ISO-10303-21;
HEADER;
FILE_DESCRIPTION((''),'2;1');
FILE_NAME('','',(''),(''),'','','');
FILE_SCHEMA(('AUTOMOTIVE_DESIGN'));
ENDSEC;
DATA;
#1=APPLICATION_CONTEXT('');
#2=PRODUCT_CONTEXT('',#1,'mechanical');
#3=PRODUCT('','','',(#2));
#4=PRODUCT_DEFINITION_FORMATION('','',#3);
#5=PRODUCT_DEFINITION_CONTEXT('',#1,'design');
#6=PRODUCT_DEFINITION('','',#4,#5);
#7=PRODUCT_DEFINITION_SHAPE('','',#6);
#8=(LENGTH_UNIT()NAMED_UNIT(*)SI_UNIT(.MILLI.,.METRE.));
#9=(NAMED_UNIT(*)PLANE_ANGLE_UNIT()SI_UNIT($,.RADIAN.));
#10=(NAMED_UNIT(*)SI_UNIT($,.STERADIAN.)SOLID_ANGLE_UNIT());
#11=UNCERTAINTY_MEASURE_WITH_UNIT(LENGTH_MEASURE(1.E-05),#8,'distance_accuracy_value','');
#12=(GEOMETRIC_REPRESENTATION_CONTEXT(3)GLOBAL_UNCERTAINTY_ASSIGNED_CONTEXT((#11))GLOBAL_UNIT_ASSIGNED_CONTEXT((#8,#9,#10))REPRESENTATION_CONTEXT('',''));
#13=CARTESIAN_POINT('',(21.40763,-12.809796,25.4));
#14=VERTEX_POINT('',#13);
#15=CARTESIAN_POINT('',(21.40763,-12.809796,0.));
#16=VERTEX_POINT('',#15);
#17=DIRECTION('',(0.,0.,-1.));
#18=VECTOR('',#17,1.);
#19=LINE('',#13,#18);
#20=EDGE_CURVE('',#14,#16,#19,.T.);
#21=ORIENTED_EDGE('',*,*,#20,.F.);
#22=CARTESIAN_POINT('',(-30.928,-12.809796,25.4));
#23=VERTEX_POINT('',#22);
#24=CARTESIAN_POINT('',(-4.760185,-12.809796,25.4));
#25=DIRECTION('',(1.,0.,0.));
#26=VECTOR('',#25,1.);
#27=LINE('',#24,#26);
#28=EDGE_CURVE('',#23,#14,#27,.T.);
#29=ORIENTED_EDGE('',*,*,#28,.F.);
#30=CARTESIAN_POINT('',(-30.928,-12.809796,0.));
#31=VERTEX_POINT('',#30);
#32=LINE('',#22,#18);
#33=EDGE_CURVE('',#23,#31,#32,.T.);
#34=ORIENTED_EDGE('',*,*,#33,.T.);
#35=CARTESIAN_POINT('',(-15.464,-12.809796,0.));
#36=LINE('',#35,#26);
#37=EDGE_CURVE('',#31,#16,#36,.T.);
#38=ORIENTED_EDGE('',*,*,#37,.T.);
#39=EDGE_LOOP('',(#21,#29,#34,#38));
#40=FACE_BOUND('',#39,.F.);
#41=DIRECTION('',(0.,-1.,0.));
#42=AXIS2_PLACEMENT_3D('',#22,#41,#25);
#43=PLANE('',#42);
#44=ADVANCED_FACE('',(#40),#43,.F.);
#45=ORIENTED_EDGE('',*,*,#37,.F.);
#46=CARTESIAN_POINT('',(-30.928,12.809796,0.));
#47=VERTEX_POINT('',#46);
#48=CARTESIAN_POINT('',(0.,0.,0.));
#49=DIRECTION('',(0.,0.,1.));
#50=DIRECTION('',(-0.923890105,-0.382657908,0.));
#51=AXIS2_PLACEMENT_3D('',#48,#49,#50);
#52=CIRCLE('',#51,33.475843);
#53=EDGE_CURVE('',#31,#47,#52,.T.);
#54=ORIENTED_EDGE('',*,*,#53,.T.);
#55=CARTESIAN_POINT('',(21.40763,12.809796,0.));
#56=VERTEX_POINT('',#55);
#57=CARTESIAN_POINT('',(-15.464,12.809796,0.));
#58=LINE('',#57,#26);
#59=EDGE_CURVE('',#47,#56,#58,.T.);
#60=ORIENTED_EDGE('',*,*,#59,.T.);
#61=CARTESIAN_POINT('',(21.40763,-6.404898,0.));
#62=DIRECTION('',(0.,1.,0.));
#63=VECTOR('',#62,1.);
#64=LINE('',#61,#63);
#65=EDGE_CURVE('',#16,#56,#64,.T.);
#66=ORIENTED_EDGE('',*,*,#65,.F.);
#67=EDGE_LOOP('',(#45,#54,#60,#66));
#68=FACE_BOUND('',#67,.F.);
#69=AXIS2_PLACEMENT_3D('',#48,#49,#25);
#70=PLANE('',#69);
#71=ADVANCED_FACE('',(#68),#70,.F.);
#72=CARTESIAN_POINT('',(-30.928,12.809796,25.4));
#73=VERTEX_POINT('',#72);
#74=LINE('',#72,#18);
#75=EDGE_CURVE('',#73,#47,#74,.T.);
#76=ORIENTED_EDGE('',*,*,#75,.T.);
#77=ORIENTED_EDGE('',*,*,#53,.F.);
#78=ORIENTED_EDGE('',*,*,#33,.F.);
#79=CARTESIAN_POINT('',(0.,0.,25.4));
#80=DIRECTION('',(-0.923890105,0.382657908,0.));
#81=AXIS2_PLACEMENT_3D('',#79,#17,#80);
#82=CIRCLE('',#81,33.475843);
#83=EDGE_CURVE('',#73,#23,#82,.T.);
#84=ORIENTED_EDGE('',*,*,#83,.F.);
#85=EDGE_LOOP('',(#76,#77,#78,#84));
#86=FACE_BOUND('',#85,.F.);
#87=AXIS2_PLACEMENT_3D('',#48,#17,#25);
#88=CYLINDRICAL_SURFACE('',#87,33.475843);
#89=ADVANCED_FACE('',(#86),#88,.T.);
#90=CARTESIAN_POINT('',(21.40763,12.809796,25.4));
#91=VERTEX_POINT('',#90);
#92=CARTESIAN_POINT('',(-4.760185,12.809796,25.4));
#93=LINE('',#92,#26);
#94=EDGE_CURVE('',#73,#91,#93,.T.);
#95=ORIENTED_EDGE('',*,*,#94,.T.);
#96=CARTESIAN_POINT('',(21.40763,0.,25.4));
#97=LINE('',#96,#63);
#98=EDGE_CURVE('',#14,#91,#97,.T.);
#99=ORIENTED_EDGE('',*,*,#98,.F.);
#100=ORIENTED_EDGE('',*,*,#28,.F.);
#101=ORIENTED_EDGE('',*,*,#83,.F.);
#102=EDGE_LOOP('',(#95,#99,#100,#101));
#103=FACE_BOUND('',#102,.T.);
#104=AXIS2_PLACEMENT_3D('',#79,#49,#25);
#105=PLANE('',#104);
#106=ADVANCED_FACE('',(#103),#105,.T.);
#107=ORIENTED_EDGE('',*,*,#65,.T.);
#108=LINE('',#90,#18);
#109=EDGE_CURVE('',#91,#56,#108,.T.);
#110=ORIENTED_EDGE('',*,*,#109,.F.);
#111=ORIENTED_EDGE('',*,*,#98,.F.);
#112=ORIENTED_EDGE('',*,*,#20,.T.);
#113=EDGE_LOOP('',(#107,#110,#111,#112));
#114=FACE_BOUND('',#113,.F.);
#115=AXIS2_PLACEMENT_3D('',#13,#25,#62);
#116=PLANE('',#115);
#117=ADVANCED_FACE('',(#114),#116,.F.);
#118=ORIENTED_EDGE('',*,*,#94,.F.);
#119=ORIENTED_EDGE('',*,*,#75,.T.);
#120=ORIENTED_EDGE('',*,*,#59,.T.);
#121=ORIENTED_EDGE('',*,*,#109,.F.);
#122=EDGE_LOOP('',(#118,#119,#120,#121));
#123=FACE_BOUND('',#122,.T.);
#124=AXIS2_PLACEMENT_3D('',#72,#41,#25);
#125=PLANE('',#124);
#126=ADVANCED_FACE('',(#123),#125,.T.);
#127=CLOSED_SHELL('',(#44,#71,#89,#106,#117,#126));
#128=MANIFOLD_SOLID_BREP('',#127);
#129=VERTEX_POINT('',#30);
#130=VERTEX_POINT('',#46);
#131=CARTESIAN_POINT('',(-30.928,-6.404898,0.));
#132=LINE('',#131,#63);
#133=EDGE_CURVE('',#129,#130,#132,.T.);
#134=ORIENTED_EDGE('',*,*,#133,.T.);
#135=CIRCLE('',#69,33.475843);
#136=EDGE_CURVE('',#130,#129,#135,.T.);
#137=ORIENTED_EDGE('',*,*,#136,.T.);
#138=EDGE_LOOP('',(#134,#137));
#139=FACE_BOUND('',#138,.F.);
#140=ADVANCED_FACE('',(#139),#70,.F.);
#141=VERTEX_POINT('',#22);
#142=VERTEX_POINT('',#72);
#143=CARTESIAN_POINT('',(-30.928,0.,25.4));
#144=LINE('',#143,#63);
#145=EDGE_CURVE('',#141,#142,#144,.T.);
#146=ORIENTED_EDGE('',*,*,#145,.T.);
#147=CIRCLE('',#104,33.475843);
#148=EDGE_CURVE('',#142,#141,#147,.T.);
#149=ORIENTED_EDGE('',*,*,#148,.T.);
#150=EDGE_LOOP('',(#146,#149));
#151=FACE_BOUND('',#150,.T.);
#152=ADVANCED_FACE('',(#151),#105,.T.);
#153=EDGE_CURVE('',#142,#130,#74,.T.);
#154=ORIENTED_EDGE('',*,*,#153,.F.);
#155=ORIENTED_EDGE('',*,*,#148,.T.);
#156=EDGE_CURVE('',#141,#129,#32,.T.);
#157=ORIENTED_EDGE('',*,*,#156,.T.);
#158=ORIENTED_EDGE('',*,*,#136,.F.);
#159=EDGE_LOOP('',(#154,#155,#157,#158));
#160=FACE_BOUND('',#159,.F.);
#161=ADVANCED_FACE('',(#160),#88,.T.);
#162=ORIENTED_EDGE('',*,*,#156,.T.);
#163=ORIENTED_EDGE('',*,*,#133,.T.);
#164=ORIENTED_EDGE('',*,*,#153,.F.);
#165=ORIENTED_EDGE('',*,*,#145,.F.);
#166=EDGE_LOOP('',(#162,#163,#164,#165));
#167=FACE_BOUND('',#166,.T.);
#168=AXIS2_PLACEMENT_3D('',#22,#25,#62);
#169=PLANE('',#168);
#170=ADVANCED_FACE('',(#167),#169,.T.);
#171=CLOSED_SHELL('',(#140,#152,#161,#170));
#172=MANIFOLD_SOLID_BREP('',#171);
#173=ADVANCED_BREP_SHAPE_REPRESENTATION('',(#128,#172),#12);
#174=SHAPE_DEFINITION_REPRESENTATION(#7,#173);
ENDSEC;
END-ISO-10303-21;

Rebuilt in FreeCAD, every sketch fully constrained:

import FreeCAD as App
import Part
import Sketcher

V = App.Vector
Q = App.Units.Quantity

doc = App.newDocument("Part")
body = doc.addObject("PartDesign::Body", "Body")
body.AllowCompound = True

# Sketch on XY plane
sketch1 = doc.addObject("Sketcher::SketchObject", "Sketch")
body.addObject(sketch1)
sketch1.AttachmentSupport = (doc.XY_Plane, [""])
sketch1.MapMode = "FlatFace"
sketch1.addGeometry(Part.Circle(V(0, 0, 0), V(0, 0, 1), 33), False)
sketch1.addConstraint(Sketcher.Constraint("Coincident", 0, 3, -1, 1))
sketch1.addConstraint(Sketcher.Constraint("Diameter", 0, Q("66.951686 mm")))
pad1 = doc.addObject("PartDesign::Pad", "Pad")
body.addObject(pad1)
pad1.Profile = sketch1
pad1.Length = Q("1 in")

# Sketch on XY plane
sketch2 = doc.addObject("Sketcher::SketchObject", "Sketch001")
body.addObject(sketch2)
sketch2.AttachmentSupport = (doc.XY_Plane, [""])
sketch2.MapMode = "FlatFace"
sketch2.AttachmentOffset = App.Placement(V(0, 0, 1 * 25.4), App.Rotation())
sketch2.addGeometry(Part.LineSegment(V(-31, 13, 0), V(-31, -13, 0)), False)
sketch2.addGeometry(Part.LineSegment(V(-31, -13, 0), V(21, -13, 0)), False)
sketch2.addGeometry(Part.LineSegment(V(21, -13, 0), V(21, 13, 0)), False)
sketch2.addGeometry(Part.LineSegment(V(21, 13, 0), V(-31, 13, 0)), False)
sketch2.addConstraint(Sketcher.Constraint("Coincident", 0, 2, 1, 1))
sketch2.addConstraint(Sketcher.Constraint("Coincident", 1, 2, 2, 1))
sketch2.addConstraint(Sketcher.Constraint("Coincident", 2, 2, 3, 1))
sketch2.addConstraint(Sketcher.Constraint("Coincident", 3, 2, 0, 1))
sketch2.addConstraint(Sketcher.Constraint("Vertical", 0))
sketch2.addConstraint(Sketcher.Constraint("Horizontal", 1))
sketch2.addConstraint(Sketcher.Constraint("Vertical", 2))
sketch2.addConstraint(Sketcher.Constraint("Horizontal", 3))
sketch2.addConstraint(Sketcher.Constraint("DistanceX", 1, 1, 1, 2, Q("52.33563 mm")))
sketch2.addConstraint(Sketcher.Constraint("DistanceX", 0, 2, -1, 1, Q("30.928 mm")))
sketch2.addConstraint(Sketcher.Constraint("DistanceY", 0, 2, 0, 1, Q("25.619592 mm")))
sketch2.addConstraint(Sketcher.Constraint("DistanceY", 0, 2, -1, 1, Q("12.809796 mm")))
pocket1 = doc.addObject("PartDesign::Pocket", "Pocket")
body.addObject(pocket1)
pocket1.Profile = sketch2
pocket1.Length = Q("1.49 in")

doc.recompute()
